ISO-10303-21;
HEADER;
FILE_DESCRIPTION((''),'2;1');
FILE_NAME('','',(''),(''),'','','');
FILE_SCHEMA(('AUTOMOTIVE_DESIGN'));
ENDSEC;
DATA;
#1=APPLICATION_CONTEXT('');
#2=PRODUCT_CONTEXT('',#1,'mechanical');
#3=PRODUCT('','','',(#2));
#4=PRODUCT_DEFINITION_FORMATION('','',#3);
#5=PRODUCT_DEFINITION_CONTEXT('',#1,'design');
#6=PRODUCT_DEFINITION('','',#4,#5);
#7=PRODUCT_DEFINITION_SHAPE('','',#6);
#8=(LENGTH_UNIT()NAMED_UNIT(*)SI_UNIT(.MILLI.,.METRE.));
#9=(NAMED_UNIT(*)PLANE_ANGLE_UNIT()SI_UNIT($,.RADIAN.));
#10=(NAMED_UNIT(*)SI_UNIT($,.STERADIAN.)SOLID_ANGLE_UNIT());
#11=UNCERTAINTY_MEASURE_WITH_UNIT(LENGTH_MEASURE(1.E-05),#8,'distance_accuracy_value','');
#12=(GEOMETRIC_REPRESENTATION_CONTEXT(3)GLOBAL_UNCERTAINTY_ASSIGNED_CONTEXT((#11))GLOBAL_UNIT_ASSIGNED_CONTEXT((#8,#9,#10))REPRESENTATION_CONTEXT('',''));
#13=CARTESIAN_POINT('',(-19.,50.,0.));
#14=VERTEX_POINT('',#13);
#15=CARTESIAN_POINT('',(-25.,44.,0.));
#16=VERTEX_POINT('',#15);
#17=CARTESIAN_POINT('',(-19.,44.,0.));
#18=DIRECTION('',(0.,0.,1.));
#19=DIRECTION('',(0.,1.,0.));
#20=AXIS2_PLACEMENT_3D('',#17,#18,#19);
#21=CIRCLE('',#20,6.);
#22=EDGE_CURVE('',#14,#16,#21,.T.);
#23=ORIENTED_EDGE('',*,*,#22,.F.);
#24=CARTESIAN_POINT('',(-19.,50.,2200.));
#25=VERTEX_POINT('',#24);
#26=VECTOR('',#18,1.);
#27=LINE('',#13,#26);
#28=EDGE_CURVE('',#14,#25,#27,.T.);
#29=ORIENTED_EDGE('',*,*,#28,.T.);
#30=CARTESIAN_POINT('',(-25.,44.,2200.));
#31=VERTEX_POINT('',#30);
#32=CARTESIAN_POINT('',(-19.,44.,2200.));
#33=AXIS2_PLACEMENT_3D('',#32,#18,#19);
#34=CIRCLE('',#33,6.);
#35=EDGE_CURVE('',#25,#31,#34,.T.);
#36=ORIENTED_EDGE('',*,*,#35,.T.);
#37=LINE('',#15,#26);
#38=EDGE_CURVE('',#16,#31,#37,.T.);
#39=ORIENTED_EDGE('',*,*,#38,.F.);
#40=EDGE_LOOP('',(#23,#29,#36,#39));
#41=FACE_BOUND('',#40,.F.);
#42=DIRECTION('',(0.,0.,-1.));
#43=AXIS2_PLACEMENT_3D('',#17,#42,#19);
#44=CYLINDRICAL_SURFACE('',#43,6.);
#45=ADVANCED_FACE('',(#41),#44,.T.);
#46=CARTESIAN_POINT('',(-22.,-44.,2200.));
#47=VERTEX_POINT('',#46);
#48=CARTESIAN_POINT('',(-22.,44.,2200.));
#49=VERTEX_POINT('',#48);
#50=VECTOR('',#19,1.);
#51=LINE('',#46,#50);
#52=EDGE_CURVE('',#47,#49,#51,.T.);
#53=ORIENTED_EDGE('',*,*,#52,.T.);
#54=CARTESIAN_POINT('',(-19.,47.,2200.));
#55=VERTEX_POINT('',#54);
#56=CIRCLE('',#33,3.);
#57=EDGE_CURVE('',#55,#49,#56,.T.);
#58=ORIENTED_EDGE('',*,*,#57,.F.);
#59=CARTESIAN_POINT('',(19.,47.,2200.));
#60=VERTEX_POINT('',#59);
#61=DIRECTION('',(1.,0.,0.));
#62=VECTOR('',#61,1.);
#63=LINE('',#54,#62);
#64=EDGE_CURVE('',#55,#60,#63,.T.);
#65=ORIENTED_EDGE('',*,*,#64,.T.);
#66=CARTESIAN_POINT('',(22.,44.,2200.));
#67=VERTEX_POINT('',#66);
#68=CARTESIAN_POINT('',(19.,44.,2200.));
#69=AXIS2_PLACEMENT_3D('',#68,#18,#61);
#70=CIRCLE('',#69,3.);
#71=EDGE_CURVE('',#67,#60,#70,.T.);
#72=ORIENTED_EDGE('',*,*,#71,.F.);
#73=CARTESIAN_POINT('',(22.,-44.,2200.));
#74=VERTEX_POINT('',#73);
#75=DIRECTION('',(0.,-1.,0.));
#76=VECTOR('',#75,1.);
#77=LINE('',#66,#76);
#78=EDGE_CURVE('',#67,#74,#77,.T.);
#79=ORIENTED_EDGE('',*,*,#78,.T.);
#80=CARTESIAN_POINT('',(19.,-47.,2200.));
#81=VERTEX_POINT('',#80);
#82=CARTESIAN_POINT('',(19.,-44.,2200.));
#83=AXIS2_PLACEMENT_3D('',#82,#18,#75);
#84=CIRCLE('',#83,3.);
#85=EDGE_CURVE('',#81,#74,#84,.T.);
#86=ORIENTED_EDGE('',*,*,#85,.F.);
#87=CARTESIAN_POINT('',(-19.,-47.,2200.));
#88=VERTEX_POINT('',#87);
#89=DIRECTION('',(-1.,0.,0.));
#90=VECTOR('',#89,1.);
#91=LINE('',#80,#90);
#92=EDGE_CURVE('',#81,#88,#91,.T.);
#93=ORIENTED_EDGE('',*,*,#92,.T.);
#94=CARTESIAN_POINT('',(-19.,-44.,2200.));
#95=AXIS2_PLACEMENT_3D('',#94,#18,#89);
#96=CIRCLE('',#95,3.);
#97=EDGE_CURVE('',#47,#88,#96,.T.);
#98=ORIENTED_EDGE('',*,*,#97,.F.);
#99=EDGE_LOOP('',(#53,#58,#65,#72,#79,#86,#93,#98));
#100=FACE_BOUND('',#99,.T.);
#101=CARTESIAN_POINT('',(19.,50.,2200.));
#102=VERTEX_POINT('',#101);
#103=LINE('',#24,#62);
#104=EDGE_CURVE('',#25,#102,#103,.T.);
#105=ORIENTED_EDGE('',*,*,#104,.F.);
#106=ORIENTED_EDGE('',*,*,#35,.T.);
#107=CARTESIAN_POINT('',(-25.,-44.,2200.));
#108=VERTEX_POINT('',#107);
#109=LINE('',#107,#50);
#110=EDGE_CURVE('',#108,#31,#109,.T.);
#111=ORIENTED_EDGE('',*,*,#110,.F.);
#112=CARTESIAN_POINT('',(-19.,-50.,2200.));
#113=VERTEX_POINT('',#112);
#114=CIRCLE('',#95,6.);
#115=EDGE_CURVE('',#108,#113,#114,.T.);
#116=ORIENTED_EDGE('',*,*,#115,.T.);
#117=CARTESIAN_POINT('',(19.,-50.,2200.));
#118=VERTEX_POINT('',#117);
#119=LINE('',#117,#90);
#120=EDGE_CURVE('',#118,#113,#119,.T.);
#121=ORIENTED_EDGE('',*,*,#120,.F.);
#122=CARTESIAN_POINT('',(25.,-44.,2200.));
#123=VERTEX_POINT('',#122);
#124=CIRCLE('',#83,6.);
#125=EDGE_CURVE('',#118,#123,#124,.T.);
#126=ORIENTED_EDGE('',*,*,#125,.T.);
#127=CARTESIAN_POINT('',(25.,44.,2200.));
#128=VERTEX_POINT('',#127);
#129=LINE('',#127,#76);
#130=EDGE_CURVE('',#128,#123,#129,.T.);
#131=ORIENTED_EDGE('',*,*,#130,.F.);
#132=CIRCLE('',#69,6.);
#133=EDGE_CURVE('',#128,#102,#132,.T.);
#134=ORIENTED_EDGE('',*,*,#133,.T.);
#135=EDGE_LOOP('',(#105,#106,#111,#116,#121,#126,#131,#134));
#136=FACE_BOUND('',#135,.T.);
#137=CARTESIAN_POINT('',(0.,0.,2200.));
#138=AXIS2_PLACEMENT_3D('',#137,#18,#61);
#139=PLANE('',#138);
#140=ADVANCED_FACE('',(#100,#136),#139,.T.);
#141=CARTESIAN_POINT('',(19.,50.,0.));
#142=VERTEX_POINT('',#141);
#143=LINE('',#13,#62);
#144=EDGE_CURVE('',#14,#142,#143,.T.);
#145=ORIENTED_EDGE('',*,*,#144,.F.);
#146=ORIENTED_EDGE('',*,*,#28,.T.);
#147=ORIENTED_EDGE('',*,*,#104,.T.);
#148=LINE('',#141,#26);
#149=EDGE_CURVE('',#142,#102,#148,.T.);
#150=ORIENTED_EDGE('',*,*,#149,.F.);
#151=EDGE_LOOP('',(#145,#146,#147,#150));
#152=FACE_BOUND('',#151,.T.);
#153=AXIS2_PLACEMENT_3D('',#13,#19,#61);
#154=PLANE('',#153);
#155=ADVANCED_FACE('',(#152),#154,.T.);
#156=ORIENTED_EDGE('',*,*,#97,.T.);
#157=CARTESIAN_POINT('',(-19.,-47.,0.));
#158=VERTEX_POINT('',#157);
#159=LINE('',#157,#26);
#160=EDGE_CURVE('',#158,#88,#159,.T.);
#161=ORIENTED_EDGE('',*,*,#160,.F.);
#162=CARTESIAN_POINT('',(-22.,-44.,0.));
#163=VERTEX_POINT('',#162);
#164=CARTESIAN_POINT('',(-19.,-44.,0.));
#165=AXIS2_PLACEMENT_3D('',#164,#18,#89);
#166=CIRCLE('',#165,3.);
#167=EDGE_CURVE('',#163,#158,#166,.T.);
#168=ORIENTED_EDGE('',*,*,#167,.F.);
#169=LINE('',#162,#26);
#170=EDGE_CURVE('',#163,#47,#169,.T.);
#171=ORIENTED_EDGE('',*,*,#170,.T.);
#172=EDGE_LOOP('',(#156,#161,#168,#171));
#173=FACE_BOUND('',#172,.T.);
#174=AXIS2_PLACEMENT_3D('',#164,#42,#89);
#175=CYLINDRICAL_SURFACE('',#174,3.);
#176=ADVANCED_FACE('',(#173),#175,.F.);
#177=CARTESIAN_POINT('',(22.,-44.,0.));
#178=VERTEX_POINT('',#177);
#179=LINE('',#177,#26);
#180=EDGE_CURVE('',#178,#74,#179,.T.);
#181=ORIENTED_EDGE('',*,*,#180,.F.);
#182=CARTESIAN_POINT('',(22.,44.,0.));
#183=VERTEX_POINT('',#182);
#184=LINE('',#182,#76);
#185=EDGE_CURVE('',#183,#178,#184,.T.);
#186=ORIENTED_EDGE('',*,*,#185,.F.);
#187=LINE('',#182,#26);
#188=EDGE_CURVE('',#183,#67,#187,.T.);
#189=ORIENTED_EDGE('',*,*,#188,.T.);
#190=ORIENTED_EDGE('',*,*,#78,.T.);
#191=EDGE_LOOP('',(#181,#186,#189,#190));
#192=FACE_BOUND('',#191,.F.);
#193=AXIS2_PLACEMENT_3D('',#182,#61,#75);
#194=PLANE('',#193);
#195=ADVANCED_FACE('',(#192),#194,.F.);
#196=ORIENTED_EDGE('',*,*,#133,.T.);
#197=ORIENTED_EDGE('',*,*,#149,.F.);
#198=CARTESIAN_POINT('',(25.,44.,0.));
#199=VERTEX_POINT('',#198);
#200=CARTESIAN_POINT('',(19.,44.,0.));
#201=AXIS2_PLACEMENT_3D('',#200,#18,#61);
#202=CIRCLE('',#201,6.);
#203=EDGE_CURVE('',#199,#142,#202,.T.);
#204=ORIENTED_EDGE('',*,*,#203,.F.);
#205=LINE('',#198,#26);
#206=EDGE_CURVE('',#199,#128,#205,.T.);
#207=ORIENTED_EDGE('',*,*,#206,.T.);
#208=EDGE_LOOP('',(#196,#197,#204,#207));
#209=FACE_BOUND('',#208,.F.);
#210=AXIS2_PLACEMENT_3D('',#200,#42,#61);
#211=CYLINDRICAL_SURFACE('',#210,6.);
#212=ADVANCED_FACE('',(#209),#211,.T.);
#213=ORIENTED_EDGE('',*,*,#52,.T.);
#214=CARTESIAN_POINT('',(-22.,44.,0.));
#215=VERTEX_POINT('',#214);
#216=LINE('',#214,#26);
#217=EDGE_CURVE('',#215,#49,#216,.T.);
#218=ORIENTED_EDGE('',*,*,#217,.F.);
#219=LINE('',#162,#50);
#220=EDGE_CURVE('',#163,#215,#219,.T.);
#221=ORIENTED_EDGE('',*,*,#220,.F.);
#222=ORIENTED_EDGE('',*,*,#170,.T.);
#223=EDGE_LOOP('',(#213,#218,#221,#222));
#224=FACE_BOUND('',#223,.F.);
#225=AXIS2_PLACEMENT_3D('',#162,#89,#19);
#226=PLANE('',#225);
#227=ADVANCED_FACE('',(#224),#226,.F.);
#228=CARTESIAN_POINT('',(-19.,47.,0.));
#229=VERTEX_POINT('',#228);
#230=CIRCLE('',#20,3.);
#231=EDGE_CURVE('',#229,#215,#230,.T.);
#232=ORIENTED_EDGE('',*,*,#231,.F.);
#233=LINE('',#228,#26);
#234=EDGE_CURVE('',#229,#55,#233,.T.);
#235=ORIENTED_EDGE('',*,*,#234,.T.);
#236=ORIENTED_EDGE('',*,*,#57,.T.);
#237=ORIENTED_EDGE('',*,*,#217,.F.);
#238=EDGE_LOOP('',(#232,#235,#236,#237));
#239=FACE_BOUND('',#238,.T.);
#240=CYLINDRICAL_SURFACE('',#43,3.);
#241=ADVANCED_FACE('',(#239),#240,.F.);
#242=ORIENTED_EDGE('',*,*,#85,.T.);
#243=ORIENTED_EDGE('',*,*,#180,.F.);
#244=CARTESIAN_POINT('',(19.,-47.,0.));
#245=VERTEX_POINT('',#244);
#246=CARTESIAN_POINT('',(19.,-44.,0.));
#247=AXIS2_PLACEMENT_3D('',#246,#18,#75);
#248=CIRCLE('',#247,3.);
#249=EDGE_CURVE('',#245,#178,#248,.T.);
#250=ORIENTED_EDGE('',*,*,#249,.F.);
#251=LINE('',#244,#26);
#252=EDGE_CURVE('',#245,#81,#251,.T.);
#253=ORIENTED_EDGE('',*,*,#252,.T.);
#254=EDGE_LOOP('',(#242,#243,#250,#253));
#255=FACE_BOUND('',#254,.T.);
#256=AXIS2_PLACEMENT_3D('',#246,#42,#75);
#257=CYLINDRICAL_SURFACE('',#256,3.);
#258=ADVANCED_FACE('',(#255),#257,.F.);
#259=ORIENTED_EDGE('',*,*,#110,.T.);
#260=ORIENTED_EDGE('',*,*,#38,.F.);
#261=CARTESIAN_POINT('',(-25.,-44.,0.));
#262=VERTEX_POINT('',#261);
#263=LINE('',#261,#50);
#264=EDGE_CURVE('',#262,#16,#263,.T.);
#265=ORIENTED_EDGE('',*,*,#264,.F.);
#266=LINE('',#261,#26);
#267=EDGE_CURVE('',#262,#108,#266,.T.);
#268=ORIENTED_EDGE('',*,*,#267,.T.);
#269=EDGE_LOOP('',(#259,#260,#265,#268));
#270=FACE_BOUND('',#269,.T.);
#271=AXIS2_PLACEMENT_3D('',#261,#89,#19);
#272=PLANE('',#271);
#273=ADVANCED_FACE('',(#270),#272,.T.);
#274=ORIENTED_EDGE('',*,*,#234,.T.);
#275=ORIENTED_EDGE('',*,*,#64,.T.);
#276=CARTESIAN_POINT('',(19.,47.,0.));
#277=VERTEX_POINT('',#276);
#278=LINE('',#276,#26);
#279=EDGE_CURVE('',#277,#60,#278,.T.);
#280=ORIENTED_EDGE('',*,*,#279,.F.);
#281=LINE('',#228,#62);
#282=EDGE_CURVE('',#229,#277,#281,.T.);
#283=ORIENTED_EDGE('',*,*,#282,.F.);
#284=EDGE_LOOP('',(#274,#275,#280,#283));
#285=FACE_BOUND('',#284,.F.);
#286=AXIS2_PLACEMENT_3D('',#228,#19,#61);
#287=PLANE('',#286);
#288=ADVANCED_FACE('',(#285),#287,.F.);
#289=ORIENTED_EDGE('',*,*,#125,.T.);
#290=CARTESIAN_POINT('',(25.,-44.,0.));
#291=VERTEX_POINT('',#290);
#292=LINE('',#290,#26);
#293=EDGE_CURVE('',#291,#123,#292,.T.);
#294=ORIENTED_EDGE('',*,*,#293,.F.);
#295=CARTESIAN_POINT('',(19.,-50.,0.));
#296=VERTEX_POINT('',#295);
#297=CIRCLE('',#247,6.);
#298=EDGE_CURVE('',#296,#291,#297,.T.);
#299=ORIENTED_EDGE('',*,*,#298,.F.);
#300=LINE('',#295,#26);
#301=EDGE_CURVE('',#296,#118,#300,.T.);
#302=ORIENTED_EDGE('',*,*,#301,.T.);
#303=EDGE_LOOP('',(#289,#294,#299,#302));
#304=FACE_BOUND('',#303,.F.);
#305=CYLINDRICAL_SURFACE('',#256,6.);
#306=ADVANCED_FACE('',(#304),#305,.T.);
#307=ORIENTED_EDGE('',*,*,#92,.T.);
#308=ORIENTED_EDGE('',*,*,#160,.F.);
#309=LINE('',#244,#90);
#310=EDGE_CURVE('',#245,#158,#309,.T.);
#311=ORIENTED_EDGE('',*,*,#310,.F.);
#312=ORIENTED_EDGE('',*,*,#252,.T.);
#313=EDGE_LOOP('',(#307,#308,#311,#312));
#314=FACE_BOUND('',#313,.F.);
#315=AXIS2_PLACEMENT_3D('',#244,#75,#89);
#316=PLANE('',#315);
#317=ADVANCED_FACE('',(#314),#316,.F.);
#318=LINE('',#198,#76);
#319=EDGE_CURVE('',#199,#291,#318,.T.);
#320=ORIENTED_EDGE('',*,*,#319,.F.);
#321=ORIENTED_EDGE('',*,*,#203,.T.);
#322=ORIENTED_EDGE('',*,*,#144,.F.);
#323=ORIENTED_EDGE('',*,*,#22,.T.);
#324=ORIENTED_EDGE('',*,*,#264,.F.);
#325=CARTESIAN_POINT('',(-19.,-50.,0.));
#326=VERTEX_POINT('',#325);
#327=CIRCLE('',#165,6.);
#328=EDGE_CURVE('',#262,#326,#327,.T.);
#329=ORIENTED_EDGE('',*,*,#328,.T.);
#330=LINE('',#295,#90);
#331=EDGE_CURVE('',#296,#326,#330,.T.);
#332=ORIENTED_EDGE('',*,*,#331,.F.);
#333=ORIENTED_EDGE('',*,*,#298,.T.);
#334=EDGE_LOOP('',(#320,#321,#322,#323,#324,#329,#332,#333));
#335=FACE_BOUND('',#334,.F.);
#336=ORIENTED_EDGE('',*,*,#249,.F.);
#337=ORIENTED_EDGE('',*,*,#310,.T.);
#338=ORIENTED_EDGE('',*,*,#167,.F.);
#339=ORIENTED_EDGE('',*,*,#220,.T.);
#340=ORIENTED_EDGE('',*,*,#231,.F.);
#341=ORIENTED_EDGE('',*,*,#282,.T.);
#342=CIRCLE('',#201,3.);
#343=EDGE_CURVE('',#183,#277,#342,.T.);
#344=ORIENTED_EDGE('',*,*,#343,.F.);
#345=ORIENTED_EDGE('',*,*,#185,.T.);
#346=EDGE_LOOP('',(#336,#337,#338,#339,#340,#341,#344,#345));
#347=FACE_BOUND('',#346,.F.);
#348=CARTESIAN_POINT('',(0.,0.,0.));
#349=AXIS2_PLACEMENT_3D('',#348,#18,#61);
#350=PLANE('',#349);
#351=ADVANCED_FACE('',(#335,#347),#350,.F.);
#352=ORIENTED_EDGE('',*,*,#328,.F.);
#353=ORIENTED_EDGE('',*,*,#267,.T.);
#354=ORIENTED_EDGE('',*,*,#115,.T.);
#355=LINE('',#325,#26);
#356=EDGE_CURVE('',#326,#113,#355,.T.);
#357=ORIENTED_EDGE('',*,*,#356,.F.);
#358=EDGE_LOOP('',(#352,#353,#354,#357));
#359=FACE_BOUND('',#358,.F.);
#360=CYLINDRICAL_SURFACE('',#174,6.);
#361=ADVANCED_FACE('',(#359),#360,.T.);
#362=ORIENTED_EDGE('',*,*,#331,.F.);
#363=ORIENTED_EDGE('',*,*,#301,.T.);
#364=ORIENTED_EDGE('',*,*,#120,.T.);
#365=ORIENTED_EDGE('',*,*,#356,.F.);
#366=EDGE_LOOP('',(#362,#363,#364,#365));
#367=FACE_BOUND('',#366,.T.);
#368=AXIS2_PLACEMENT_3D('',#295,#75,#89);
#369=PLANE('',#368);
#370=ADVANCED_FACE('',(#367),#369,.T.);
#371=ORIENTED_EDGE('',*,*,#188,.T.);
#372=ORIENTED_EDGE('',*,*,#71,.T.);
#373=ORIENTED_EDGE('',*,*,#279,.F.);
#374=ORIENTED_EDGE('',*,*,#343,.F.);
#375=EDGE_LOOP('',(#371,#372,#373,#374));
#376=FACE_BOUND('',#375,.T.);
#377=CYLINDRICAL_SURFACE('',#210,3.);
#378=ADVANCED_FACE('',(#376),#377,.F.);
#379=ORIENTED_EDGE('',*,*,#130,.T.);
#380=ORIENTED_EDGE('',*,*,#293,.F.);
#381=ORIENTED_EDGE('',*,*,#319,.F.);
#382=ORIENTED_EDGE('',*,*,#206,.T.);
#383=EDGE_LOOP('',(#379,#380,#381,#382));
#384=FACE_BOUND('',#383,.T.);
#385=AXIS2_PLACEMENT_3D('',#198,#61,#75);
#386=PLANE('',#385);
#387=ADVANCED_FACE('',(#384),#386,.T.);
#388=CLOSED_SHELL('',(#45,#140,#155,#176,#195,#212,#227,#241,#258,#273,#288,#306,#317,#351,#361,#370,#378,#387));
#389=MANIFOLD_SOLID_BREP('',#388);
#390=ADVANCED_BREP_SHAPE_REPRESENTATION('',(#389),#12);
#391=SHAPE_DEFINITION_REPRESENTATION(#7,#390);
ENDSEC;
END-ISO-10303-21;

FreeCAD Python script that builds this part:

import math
import FreeCAD as App
import Part
import Sketcher
Q = App.Units.Quantity

doc = App.newDocument("Part")
body = doc.addObject("PartDesign::Body", "Body")

# Sketch on XY plane
sketch1 = body.newObject("Sketcher::SketchObject", "Sketch")
sketch1.AttachmentSupport = (doc.getObject("XY_Plane"), [""])
sketch1.MapMode = "FlatFace"
sketch1.addGeometry([
    Part.LineSegment(App.Vector(-25, 44, 0), App.Vector(-25, -44, 0)),  # 0
    Part.ArcOfCircle(Part.Circle(App.Vector(-19, -44, 0), App.Vector(0, 0, 1), 6), math.radians(180), math.radians(270)),  # 1
    Part.LineSegment(App.Vector(-19, -50, 0), App.Vector(19, -50, 0)),  # 2
    Part.ArcOfCircle(Part.Circle(App.Vector(19, -44, 0), App.Vector(0, 0, 1), 6), math.radians(-90), math.radians(0)),  # 3
    Part.LineSegment(App.Vector(25, -44, 0), App.Vector(25, 44, 0)),  # 4
    Part.ArcOfCircle(Part.Circle(App.Vector(19, 44, 0), App.Vector(0, 0, 1), 6), math.radians(0), math.radians(90)),  # 5
    Part.LineSegment(App.Vector(19, 50, 0), App.Vector(-19, 50, 0)),  # 6
    Part.ArcOfCircle(Part.Circle(App.Vector(-19, 44, 0), App.Vector(0, 0, 1), 6), math.radians(90), math.radians(180)),  # 7
    Part.ArcOfCircle(Part.Circle(App.Vector(-19, 44, 0), App.Vector(0, 0, 1), 3), math.radians(90), math.radians(180)),  # 8
    Part.LineSegment(App.Vector(-19, 47, 0), App.Vector(19, 47, 0)),  # 9
    Part.ArcOfCircle(Part.Circle(App.Vector(19, 44, 0), App.Vector(0, 0, 1), 3), math.radians(0), math.radians(90)),  # 10
    Part.LineSegment(App.Vector(22, 44, 0), App.Vector(22, -44, 0)),  # 11
    Part.ArcOfCircle(Part.Circle(App.Vector(19, -44, 0), App.Vector(0, 0, 1), 3), math.radians(-90), math.radians(0)),  # 12
    Part.LineSegment(App.Vector(19, -47, 0), App.Vector(-19, -47, 0)),  # 13
    Part.ArcOfCircle(Part.Circle(App.Vector(-19, -44, 0), App.Vector(0, 0, 1), 3), math.radians(180), math.radians(270)),  # 14
    Part.LineSegment(App.Vector(-22, -44, 0), App.Vector(-22, 44, 0)),  # 15
], False)
sketch1.addConstraint([
    Sketcher.Constraint("Tangent", 0, 2, 1, 1),
    Sketcher.Constraint("Tangent", 1, 2, 2, 1),
    Sketcher.Constraint("Tangent", 2, 2, 3, 1),
    Sketcher.Constraint("Tangent", 3, 2, 4, 1),
    Sketcher.Constraint("Tangent", 4, 2, 5, 1),
    Sketcher.Constraint("Tangent", 5, 2, 6, 1),
    Sketcher.Constraint("Tangent", 6, 2, 7, 1),
    Sketcher.Constraint("Tangent", 7, 2, 0, 1),
    Sketcher.Constraint("Tangent", 8, 1, 9, 1),
    Sketcher.Constraint("Tangent", 9, 2, 10, 2),
    Sketcher.Constraint("Tangent", 10, 1, 11, 1),
    Sketcher.Constraint("Tangent", 11, 2, 12, 2),
    Sketcher.Constraint("Tangent", 12, 1, 13, 1),
    Sketcher.Constraint("Tangent", 13, 2, 14, 2),
    Sketcher.Constraint("Tangent", 14, 1, 15, 1),
    Sketcher.Constraint("Tangent", 15, 2, 8, 2),
    Sketcher.Constraint("Vertical", 0),
    Sketcher.Constraint("Horizontal", 2),
    Sketcher.Constraint("Vertical", 4),
    Sketcher.Constraint("Horizontal", 6),
    Sketcher.Constraint("Horizontal", 9),
    Sketcher.Constraint("Vertical", 11),
    Sketcher.Constraint("Horizontal", 13),
    Sketcher.Constraint("Vertical", 15),
    Sketcher.Constraint("Coincident", 8, 3, 7, 3),
    Sketcher.Constraint("Coincident", 10, 3, 5, 3),
    Sketcher.Constraint("Coincident", 12, 3, 3, 3),
    Sketcher.Constraint("Equal", 1, 3),
    Sketcher.Constraint("Equal", 3, 5),
    Sketcher.Constraint("Equal", 5, 7),
    Sketcher.Constraint("Equal", 12, 14),
    Sketcher.Constraint("Symmetric", 1, 3, 5, 3, -1, 1),
    Sketcher.Constraint("Radius", 1, Q("6 mm")),
    Sketcher.Constraint("Radius", 8, Q("3 mm")),
    Sketcher.Constraint("DistanceX", 0, 2, -1, 1, Q("25 mm")),
    Sketcher.Constraint("DistanceY", 1, 2, -1, 1, Q("50 mm")),
])
pad1 = body.newObject("PartDesign::Pad", "Pad")
pad1.Profile = sketch1
pad1.Length = 2200

doc.recompute()
